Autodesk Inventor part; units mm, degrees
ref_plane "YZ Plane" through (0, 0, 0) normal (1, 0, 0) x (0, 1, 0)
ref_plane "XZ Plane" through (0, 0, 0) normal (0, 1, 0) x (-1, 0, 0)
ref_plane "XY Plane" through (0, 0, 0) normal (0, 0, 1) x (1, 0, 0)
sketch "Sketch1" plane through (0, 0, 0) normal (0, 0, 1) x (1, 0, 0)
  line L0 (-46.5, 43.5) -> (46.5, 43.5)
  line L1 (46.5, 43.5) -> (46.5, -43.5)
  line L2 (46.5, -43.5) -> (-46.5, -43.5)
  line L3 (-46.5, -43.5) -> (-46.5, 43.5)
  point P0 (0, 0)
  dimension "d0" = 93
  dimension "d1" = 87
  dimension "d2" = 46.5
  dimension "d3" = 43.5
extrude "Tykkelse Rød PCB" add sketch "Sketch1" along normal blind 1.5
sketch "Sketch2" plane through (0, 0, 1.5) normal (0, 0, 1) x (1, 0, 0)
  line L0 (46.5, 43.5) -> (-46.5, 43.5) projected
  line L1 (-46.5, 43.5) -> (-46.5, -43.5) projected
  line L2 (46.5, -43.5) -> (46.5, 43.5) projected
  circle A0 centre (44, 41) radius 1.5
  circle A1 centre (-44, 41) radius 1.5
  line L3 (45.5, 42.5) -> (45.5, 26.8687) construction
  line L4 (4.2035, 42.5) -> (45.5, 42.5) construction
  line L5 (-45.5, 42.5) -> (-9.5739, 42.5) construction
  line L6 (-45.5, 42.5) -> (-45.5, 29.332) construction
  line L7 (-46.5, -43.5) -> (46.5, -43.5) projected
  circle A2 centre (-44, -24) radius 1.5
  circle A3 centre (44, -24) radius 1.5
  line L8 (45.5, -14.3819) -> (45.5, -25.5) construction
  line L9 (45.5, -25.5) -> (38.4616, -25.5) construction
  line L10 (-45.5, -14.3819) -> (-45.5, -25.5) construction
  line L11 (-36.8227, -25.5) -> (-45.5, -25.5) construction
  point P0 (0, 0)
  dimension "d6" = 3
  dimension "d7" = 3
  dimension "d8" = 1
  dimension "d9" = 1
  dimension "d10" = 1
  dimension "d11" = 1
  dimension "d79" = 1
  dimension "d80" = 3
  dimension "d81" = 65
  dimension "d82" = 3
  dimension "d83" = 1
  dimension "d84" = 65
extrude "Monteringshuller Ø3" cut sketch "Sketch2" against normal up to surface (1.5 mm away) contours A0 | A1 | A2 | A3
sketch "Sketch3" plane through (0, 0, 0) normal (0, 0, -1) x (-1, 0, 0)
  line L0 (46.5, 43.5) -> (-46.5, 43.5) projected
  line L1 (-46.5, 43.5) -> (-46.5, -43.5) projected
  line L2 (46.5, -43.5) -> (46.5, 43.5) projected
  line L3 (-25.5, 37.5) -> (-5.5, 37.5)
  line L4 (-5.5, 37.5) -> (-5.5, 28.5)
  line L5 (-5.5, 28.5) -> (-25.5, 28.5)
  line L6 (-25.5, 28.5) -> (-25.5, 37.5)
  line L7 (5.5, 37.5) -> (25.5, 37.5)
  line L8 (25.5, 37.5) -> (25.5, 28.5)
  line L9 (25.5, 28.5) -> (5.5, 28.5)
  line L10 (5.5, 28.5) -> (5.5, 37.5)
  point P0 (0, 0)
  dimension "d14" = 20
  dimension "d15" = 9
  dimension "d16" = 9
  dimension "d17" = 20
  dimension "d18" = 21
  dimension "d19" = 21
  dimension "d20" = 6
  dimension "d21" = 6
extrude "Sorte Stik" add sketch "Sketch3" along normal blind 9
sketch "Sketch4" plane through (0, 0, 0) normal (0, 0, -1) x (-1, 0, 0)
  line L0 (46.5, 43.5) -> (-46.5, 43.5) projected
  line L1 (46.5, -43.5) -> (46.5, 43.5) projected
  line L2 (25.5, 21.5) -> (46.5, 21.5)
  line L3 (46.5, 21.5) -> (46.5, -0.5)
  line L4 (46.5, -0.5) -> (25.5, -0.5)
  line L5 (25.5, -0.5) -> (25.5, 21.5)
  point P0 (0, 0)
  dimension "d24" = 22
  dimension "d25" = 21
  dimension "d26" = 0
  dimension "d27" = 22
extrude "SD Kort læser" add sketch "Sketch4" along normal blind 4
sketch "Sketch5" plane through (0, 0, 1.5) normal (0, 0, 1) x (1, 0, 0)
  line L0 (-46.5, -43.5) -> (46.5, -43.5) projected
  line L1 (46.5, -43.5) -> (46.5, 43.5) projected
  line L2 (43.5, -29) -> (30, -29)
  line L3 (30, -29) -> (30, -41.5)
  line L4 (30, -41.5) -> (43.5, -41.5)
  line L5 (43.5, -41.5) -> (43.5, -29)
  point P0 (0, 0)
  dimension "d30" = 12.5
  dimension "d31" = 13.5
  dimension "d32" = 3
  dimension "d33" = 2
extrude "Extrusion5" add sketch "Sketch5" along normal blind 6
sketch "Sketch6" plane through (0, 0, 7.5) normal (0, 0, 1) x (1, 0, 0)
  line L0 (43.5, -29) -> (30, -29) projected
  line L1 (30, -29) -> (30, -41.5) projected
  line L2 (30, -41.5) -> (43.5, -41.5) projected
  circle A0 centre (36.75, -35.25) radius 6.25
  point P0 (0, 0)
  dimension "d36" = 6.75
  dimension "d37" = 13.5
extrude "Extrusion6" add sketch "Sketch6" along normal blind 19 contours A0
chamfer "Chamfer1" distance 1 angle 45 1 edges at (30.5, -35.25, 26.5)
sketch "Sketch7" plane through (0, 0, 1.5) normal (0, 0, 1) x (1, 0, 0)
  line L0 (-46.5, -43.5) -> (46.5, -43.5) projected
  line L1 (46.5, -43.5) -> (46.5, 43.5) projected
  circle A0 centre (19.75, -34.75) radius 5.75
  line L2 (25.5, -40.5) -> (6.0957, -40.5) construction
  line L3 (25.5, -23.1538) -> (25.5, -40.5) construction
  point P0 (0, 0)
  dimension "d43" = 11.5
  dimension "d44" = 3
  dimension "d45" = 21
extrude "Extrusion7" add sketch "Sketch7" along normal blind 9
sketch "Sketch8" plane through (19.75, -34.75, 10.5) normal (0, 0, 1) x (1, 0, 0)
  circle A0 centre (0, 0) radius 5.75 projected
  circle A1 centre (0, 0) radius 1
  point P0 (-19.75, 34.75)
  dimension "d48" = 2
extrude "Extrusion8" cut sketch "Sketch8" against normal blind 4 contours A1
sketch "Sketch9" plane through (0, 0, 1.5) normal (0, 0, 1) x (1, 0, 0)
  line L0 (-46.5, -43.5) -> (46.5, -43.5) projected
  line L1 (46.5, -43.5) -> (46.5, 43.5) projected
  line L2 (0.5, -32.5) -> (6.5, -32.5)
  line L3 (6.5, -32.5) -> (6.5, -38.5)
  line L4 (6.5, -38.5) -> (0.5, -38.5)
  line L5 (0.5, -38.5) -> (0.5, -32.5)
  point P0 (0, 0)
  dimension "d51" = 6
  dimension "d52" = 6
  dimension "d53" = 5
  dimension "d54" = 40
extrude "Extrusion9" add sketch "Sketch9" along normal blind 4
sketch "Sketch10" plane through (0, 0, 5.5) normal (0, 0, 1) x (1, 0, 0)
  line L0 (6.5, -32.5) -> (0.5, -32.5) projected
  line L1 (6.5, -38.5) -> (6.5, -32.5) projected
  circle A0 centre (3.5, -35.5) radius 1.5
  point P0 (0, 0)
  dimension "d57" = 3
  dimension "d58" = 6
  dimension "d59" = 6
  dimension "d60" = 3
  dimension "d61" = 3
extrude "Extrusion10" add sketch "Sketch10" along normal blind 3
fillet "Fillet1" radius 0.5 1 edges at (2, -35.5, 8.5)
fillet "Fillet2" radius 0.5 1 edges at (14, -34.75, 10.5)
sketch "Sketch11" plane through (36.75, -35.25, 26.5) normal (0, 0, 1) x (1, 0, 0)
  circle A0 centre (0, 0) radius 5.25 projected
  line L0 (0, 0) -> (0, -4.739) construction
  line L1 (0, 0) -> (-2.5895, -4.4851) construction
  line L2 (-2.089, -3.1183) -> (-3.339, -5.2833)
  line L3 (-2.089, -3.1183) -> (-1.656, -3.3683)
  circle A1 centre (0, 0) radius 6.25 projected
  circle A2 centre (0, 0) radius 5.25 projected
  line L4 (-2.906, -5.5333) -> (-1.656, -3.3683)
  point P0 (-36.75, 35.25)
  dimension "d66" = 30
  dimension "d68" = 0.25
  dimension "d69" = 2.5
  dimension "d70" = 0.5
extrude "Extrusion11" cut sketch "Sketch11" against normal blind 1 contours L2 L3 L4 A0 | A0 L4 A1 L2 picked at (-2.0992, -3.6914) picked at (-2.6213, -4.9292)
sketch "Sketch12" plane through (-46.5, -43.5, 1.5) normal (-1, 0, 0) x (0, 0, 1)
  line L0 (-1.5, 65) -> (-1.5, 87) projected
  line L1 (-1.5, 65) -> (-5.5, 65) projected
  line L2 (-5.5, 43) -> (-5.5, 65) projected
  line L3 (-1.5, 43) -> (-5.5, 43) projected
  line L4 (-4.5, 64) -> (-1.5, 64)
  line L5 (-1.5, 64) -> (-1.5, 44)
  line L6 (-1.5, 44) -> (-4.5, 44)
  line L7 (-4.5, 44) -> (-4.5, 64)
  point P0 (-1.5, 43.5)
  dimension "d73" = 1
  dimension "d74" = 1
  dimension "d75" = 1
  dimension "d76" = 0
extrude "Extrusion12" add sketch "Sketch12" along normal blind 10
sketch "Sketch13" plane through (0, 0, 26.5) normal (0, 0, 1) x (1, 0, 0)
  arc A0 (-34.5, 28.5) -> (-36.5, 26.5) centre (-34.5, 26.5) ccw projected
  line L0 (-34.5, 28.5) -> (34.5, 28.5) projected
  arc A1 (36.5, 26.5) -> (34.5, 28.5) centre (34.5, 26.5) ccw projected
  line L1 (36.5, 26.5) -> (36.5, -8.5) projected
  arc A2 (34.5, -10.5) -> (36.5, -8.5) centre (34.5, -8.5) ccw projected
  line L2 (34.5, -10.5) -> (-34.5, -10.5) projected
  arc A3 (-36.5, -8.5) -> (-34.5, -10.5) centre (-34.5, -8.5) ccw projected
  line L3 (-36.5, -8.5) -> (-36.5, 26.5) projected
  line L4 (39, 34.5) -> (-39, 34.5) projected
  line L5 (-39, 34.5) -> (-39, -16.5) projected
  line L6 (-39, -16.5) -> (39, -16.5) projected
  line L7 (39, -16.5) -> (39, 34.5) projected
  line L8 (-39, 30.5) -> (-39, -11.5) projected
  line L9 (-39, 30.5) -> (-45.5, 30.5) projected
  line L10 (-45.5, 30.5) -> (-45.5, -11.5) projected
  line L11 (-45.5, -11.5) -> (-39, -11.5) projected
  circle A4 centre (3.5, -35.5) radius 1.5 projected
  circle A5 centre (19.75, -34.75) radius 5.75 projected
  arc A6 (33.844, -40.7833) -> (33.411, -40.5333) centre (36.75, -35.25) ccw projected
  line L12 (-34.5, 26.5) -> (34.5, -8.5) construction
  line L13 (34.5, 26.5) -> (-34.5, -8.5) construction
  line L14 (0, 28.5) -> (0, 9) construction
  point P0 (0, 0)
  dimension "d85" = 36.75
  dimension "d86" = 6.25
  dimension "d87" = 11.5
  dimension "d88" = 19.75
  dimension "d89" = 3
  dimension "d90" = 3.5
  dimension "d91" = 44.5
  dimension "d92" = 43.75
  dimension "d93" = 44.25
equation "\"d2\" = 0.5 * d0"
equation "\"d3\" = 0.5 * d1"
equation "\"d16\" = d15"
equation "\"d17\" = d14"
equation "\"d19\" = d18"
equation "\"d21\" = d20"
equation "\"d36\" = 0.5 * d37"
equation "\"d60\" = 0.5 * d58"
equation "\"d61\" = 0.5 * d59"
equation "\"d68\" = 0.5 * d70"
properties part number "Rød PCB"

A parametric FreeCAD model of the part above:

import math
import FreeCAD as App
import Part
import Sketcher

V = App.Vector
Q = App.Units.Quantity


def edges_at(feature, points):
    """Names of the edges that pass closest to the given points."""
    edges = feature.Shape.Edges
    near = lambda p: min(range(len(edges)), key=lambda i: edges[i].distToShape(Part.Vertex(*p))[0])
    return sorted({f"Edge{near(p) + 1}" for p in points})

doc = App.newDocument("Part")
body = doc.addObject("PartDesign::Body", "Body")

# Sketch on XY plane
sketch1 = doc.addObject("Sketcher::SketchObject", "Sketch")
body.addObject(sketch1)
sketch1.AttachmentSupport = (doc.XY_Plane, [""])
sketch1.MapMode = "FlatFace"
sketch1.addGeometry(Part.LineSegment(V(46, 44, 0), V(-46, 44, 0)), False)
sketch1.addGeometry(Part.LineSegment(V(-46, 44, 0), V(-46, -44, 0)), False)
sketch1.addGeometry(Part.LineSegment(V(-46, -44, 0), V(46, -44, 0)), False)
sketch1.addGeometry(Part.LineSegment(V(46, -44, 0), V(46, 44, 0)), False)
sketch1.addConstraint(Sketcher.Constraint("Coincident", 0, 2, 1, 1))
sketch1.addConstraint(Sketcher.Constraint("Coincident", 1, 2, 2, 1))
sketch1.addConstraint(Sketcher.Constraint("Coincident", 2, 2, 3, 1))
sketch1.addConstraint(Sketcher.Constraint("Coincident", 3, 2, 0, 1))
sketch1.addConstraint(Sketcher.Constraint("Horizontal", 0))
sketch1.addConstraint(Sketcher.Constraint("Vertical", 1))
sketch1.addConstraint(Sketcher.Constraint("Horizontal", 2))
sketch1.addConstraint(Sketcher.Constraint("Vertical", 3))
sketch1.addConstraint(Sketcher.Constraint("Symmetric", 0, 2, 2, 2, -1, 1))
sketch1.addConstraint(Sketcher.Constraint("DistanceX", 0, 2, 0, 1, 93.0))
sketch1.addConstraint(Sketcher.Constraint("DistanceY", 1, 2, 1, 1, 87.0))
pad1 = doc.addObject("PartDesign::Pad", "Pad")
body.addObject(pad1)
pad1.Profile = sketch1
pad1.Length = 1.5

# Sketch on XY plane
sketch2 = doc.addObject("Sketcher::SketchObject", "Sketch001")
body.addObject(sketch2)
sketch2.AttachmentSupport = (doc.XY_Plane, [""])
sketch2.MapMode = "FlatFace"
sketch2.AttachmentOffset = App.Placement(V(0, 0, 1.5), App.Rotation())
sketch2.addGeometry(Part.Circle(V(44, 41, 0), V(0, 0, 1), 1.5), False)
sketch2.addGeometry(Part.Circle(V(-44, 41, 0), V(0, 0, 1), 1.5), False)
sketch2.addGeometry(Part.Circle(V(-44, -24, 0), V(0, 0, 1), 1.5), False)
sketch2.addGeometry(Part.Circle(V(44, -24, 0), V(0, 0, 1), 1.5), False)
sketch2.addConstraint(Sketcher.Constraint("Equal", 0, 1))
sketch2.addConstraint(Sketcher.Constraint("Equal", 1, 2))
sketch2.addConstraint(Sketcher.Constraint("Equal", 2, 3))
sketch2.addConstraint(Sketcher.Constraint("Symmetric", 0, 3, 1, 3, -2))
sketch2.addConstraint(Sketcher.Constraint("Symmetric", 2, 3, 3, 3, -2))
sketch2.addConstraint(Sketcher.Constraint("Vertical", 1, 3, 2, 3))
sketch2.addConstraint(Sketcher.Constraint("Diameter", 0, 3.0))
sketch2.addConstraint(Sketcher.Constraint("DistanceY", 2, 3, 1, 3, 65.0))
sketch2.addConstraint(Sketcher.Constraint("DistanceX", -1, 1, 0, 3, 44.0))
sketch2.addConstraint(Sketcher.Constraint("DistanceY", -1, 1, 0, 3, 41.0))
pocket1 = doc.addObject("PartDesign::Pocket", "Pocket")
body.addObject(pocket1)
pocket1.Profile = sketch2
pocket1.Length = 1.5

# Sketch on XY plane
sketch3 = doc.addObject("Sketcher::SketchObject", "Sketch002")
body.addObject(sketch3)
sketch3.AttachmentSupport = (doc.XY_Plane, [""])
sketch3.MapMode = "FlatFace"
sketch3.addGeometry(Part.LineSegment(V(6, 38, 0), V(26, 38, 0)), False)
sketch3.addGeometry(Part.LineSegment(V(26, 38, 0), V(26, 28, 0)), False)
sketch3.addGeometry(Part.LineSegment(V(26, 28, 0), V(6, 28, 0)), False)
sketch3.addGeometry(Part.LineSegment(V(6, 28, 0), V(6, 38, 0)), False)
sketch3.addGeometry(Part.LineSegment(V(-26, 38, 0), V(-6, 38, 0)), False)
sketch3.addGeometry(Part.LineSegment(V(-6, 38, 0), V(-6, 28, 0)), False)
sketch3.addGeometry(Part.LineSegment(V(-6, 28, 0), V(-26, 28, 0)), False)
sketch3.addGeometry(Part.LineSegment(V(-26, 28, 0), V(-26, 38, 0)), False)
sketch3.addConstraint(Sketcher.Constraint("Coincident", 0, 2, 1, 1))
sketch3.addConstraint(Sketcher.Constraint("Coincident", 1, 2, 2, 1))
sketch3.addConstraint(Sketcher.Constraint("Coincident", 2, 2, 3, 1))
sketch3.addConstraint(Sketcher.Constraint("Coincident", 3, 2, 0, 1))
sketch3.addConstraint(Sketcher.Constraint("Coincident", 4, 2, 5, 1))
sketch3.addConstraint(Sketcher.Constraint("Coincident", 5, 2, 6, 1))
sketch3.addConstraint(Sketcher.Constraint("Coincident", 6, 2, 7, 1))
sketch3.addConstraint(Sketcher.Constraint("Coincident", 7, 2, 4, 1))
sketch3.addConstraint(Sketcher.Constraint("Horizontal", 0))
sketch3.addConstraint(Sketcher.Constraint("Vertical", 1))
sketch3.addConstraint(Sketcher.Constraint("Horizontal", 2))
sketch3.addConstraint(Sketcher.Constraint("Vertical", 3))
sketch3.addConstraint(Sketcher.Constraint("Horizontal", 4))
sketch3.addConstraint(Sketcher.Constraint("Vertical", 5))
sketch3.addConstraint(Sketcher.Constraint("Horizontal", 6))
sketch3.addConstraint(Sketcher.Constraint("Vertical", 7))
sketch3.addConstraint(Sketcher.Constraint("Symmetric", 3, 2, 4, 2, -2))
sketch3.addConstraint(Sketcher.Constraint("Symmetric", 1, 2, 6, 2, -2))
sketch3.addConstraint(Sketcher.Constraint("DistanceX", 0, 1, 0, 2, 20.0))
sketch3.addConstraint(Sketcher.Constraint("DistanceY", 1, 2, 1, 1, 9.0))
sketch3.addConstraint(Sketcher.Constraint("DistanceX", 4, 2, 3, 2, 11.0))
sketch3.addConstraint(Sketcher.Constraint("DistanceY", -1, 1, 0, 2, 37.5))
pad2 = doc.addObject("PartDesign::Pad", "Pad001")
body.addObject(pad2)
pad2.Profile = sketch3
pad2.Length = 9
pad2.Reversed = True

# Sketch on XY plane
sketch4 = doc.addObject("Sketcher::SketchObject", "Sketch003")
body.addObject(sketch4)
sketch4.AttachmentSupport = (doc.XY_Plane, [""])
sketch4.MapMode = "FlatFace"
sketch4.addGeometry(Part.LineSegment(V(-26, 0, 0), V(-46, 0, 0)), False)
sketch4.addGeometry(Part.LineSegment(V(-46, 0, 0), V(-46, 22, 0)), False)
sketch4.addGeometry(Part.LineSegment(V(-46, 22, 0), V(-26, 22, 0)), False)
sketch4.addGeometry(Part.LineSegment(V(-26, 22, 0), V(-26, 0, 0)), False)
sketch4.addConstraint(Sketcher.Constraint("Coincident", 0, 2, 1, 1))
sketch4.addConstraint(Sketcher.Constraint("Coincident", 1, 2, 2, 1))
sketch4.addConstraint(Sketcher.Constraint("Coincident", 2, 2, 3, 1))
sketch4.addConstraint(Sketcher.Constraint("Coincident", 3, 2, 0, 1))
sketch4.addConstraint(Sketcher.Constraint("Horizontal", 0))
sketch4.addConstraint(Sketcher.Constraint("Vertical", 1))
sketch4.addConstraint(Sketcher.Constraint("Horizontal", 2))
sketch4.addConstraint(Sketcher.Constraint("Vertical", 3))
sketch4.addConstraint(Sketcher.Constraint("DistanceX", 0, 2, 0, 1, 21.0))
sketch4.addConstraint(Sketcher.Constraint("DistanceY", 1, 1, 1, 2, 22.0))
sketch4.addConstraint(Sketcher.Constraint("DistanceX", 0, 2, -1, 1, 46.5))
sketch4.addConstraint(Sketcher.Constraint("DistanceY", 0, 2, -1, 1, 0.5))
pad3 = doc.addObject("PartDesign::Pad", "Pad002")
body.addObject(pad3)
pad3.Profile = sketch4
pad3.Length = 4
pad3.Reversed = True

# Sketch on XY plane
sketch5 = doc.addObject("Sketcher::SketchObject", "Sketch004")
body.addObject(sketch5)
sketch5.AttachmentSupport = (doc.XY_Plane, [""])
sketch5.MapMode = "FlatFace"
sketch5.AttachmentOffset = App.Placement(V(0, 0, 1.5), App.Rotation())
sketch5.addGeometry(Part.LineSegment(V(44, -42, 0), V(44, -29, 0)), False)
sketch5.addGeometry(Part.LineSegment(V(44, -29, 0), V(30, -29, 0)), False)
sketch5.addGeometry(Part.LineSegment(V(30, -29, 0), V(30, -42, 0)), False)
sketch5.addGeometry(Part.LineSegment(V(30, -42, 0), V(44, -42, 0)), False)
sketch5.addConstraint(Sketcher.Constraint("Coincident", 0, 2, 1, 1))
sketch5.addConstraint(Sketcher.Constraint("Coincident", 1, 2, 2, 1))
sketch5.addConstraint(Sketcher.Constraint("Coincident", 2, 2, 3, 1))
sketch5.addConstraint(Sketcher.Constraint("Coincident", 3, 2, 0, 1))
sketch5.addConstraint(Sketcher.Constraint("Vertical", 0))
sketch5.addConstraint(Sketcher.Constraint("Horizontal", 1))
sketch5.addConstraint(Sketcher.Constraint("Vertical", 2))
sketch5.addConstraint(Sketcher.Constraint("Horizontal", 3))
sketch5.addConstraint(Sketcher.Constraint("DistanceX", 1, 2, 1, 1, 13.5))
sketch5.addConstraint(Sketcher.Constraint("DistanceY", 0, 1, 0, 2, 12.5))
sketch5.addConstraint(Sketcher.Constraint("DistanceY", 0, 2, -1, 1, 29.0))
sketch5.addConstraint(Sketcher.Constraint("DistanceX", -1, 1, 1, 2, 30.0))
pad4 = doc.addObject("PartDesign::Pad", "Pad003")
body.addObject(pad4)
pad4.Profile = sketch5
pad4.Length = 6

# Sketch on XY plane
sketch6 = doc.addObject("Sketcher::SketchObject", "Sketch005")
body.addObject(sketch6)
sketch6.AttachmentSupport = (doc.XY_Plane, [""])
sketch6.MapMode = "FlatFace"
sketch6.AttachmentOffset = App.Placement(V(0, 0, 7.5), App.Rotation())
sketch6.addGeometry(Part.Circle(V(37, -35, 0), V(0, 0, 1), 6), False)
sketch6.addConstraint(Sketcher.Constraint("Diameter", 0, 12.5))
sketch6.addConstraint(Sketcher.Constraint("DistanceX", -1, 1, 0, 3, 36.75))
sketch6.addConstraint(Sketcher.Constraint("DistanceY", 0, 3, -1, 1, 35.25))
pad5 = doc.addObject("PartDesign::Pad", "Pad004")
body.addObject(pad5)
pad5.Profile = sketch6
pad5.Length = 19
doc.recompute()

chamfer = doc.addObject("PartDesign::Chamfer", "Chamfer")
body.addObject(chamfer)
chamfer.Base = (pad5, edges_at(pad5, [(30.5, -35.25, 26.5)]))
chamfer.Size = 1

# Sketch on XY plane
sketch7 = doc.addObject("Sketcher::SketchObject", "Sketch006")
body.addObject(sketch7)
sketch7.AttachmentSupport = (doc.XY_Plane, [""])
sketch7.MapMode = "FlatFace"
sketch7.AttachmentOffset = App.Placement(V(0, 0, 1.5), App.Rotation())
sketch7.addGeometry(Part.Circle(V(20, -35, 0), V(0, 0, 1), 6), False)
sketch7.addConstraint(Sketcher.Constraint("Diameter", 0, 11.5))
sketch7.addConstraint(Sketcher.Constraint("DistanceX", -1, 1, 0, 3, 19.75))
sketch7.addConstraint(Sketcher.Constraint("DistanceY", 0, 3, -1, 1, 34.75))
pad6 = doc.addObject("PartDesign::Pad", "Pad005")
body.addObject(pad6)
pad6.Profile = sketch7
pad6.Length = 9

# Sketch on XY plane
sketch8 = doc.addObject("Sketcher::SketchObject", "Sketch007")
body.addObject(sketch8)
sketch8.AttachmentSupport = (doc.XY_Plane, [""])
sketch8.MapMode = "FlatFace"
sketch8.AttachmentOffset = App.Placement(V(0, 0, 10.5), App.Rotation())
sketch8.addGeometry(Part.Circle(V(19.8, -34.8, 0), V(0, 0, 1), 1), False)
sketch8.addConstraint(Sketcher.Constraint("Diameter", 0, 2.0))
sketch8.addConstraint(Sketcher.Constraint("DistanceX", -1, 1, 0, 3, 19.75))
sketch8.addConstraint(Sketcher.Constraint("DistanceY", 0, 3, -1, 1, 34.75))
pocket2 = doc.addObject("PartDesign::Pocket", "Pocket001")
body.addObject(pocket2)
pocket2.Profile = sketch8
pocket2.Length = 4

# Sketch on XY plane
sketch9 = doc.addObject("Sketcher::SketchObject", "Sketch008")
body.addObject(sketch9)
sketch9.AttachmentSupport = (doc.XY_Plane, [""])
sketch9.MapMode = "FlatFace"
sketch9.AttachmentOffset = App.Placement(V(0, 0, 1.5), App.Rotation())
sketch9.addGeometry(Part.LineSegment(V(6, -32, 0), V(0, -32, 0)), False)
sketch9.addGeometry(Part.LineSegment(V(0, -32, 0), V(0, -38, 0)), False)
sketch9.addGeometry(Part.LineSegment(V(0, -38, 0), V(6, -38, 0)), False)
sketch9.addGeometry(Part.LineSegment(V(6, -38, 0), V(6, -32, 0)), False)
sketch9.addConstraint(Sketcher.Constraint("Coincident", 0, 2, 1, 1))
sketch9.addConstraint(Sketcher.Constraint("Coincident", 1, 2, 2, 1))
sketch9.addConstraint(Sketcher.Constraint("Coincident", 2, 2, 3, 1))
sketch9.addConstraint(Sketcher.Constraint("Coincident", 3, 2, 0, 1))
sketch9.addConstraint(Sketcher.Constraint("Horizontal", 0))
sketch9.addConstraint(Sketcher.Constraint("Vertical", 1))
sketch9.addConstraint(Sketcher.Constraint("Horizontal", 2))
sketch9.addConstraint(Sketcher.Constraint("Vertical", 3))
sketch9.addConstraint(Sketcher.Constraint("Equal", 2, 1))
sketch9.addConstraint(Sketcher.Constraint("DistanceX", 0, 2, 0, 1, 6.0))
sketch9.addConstraint(Sketcher.Constraint("DistanceX", -1, 1, 0, 2, 0.5))
sketch9.addConstraint(Sketcher.Constraint("DistanceY", 0, 2, -1, 1, 32.5))
pad7 = doc.addObject("PartDesign::Pad", "Pad006")
body.addObject(pad7)
pad7.Profile = sketch9
pad7.Length = 4

# Sketch on XY plane
sketch10 = doc.addObject("Sketcher::SketchObject", "Sketch009")
body.addObject(sketch10)
sketch10.AttachmentSupport = (doc.XY_Plane, [""])
sketch10.MapMode = "FlatFace"
sketch10.AttachmentOffset = App.Placement(V(0, 0, 5.5), App.Rotation())
sketch10.addGeometry(Part.Circle(V(3.5, -35.5, 0), V(0, 0, 1), 1.5), False)
sketch10.addConstraint(Sketcher.Constraint("Diameter", 0, 3.0))
sketch10.addConstraint(Sketcher.Constraint("DistanceX", -1, 1, 0, 3, 3.5))
sketch10.addConstraint(Sketcher.Constraint("DistanceY", 0, 3, -1, 1, 35.5))
pad8 = doc.addObject("PartDesign::Pad", "Pad007")
body.addObject(pad8)
pad8.Profile = sketch10
pad8.Length = 3
doc.recompute()

fillet = doc.addObject("PartDesign::Fillet", "Fillet")
body.addObject(fillet)
fillet.Base = (pad8, edges_at(pad8, [(2, -35.5, 8.5)]))
fillet.Radius = 0.5
doc.recompute()

fillet2 = doc.addObject("PartDesign::Fillet", "Fillet001")
body.addObject(fillet2)
fillet2.Base = (fillet, edges_at(fillet, [(14, -34.75, 10.5)]))
fillet2.Radius = 0.5

# Sketch on XY plane
sketch11 = doc.addObject("Sketcher::SketchObject", "Sketch010")
body.addObject(sketch11)
sketch11.AttachmentSupport = (doc.XY_Plane, [""])
sketch11.MapMode = "FlatFace"
sketch11.AttachmentOffset = App.Placement(V(0, 0, 26.5), App.Rotation())
sketch11.addGeometry(Part.LineSegment(V(34.66, -38.37, 0), V(33.41, -40.53, 0)), False)
sketch11.addGeometry(Part.ArcOfCircle(Part.Circle(V(36.75, -35.25, 0), V(0, 0, 1), 6.25), math.radians(-122.29), math.radians(-117.71)), False)
sketch11.addGeometry(Part.LineSegment(V(33.84, -40.78, 0), V(35.09, -38.62, 0)), False)
sketch11.addGeometry(Part.LineSegment(V(35.09, -38.62, 0), V(34.66, -38.37, 0)), False)
sketch11.addConstraint(Sketcher.Constraint("Coincident", 0, 2, 1, 1))
sketch11.addConstraint(Sketcher.Constraint("Coincident", 1, 2, 2, 1))
sketch11.addConstraint(Sketcher.Constraint("Coincident", 2, 2, 3, 1))
sketch11.addConstraint(Sketcher.Constraint("Coincident", 3, 2, 0, 1))
sketch11.addConstraint(Sketcher.Constraint("Parallel", 0, 2))
sketch11.addConstraint(Sketcher.Constraint("Perpendicular", 2, 3))
sketch11.addConstraint(Sketcher.Constraint("Equal", 0, 2))
sketch11.addConstraint(Sketcher.Constraint("Distance", 0, 2.5))
sketch11.addConstraint(Sketcher.Constraint("Distance", 3, 0.5))
sketch11.addConstraint(Sketcher.Constraint("Angle", 0, Q("-120.0007 deg")))
sketch11.addConstraint(Sketcher.Constraint("Radius", 1, 6.25))
sketch11.addConstraint(Sketcher.Constraint("DistanceX", -1, 1, 1, 3, 36.75))
sketch11.addConstraint(Sketcher.Constraint("DistanceY", 1, 3, -1, 1, 35.25))
pocket3 = doc.addObject("PartDesign::Pocket", "Pocket002")
body.addObject(pocket3)
pocket3.Profile = sketch11
pocket3.Length = 1

# Sketch on YZ plane
sketch12 = doc.addObject("Sketcher::SketchObject", "Sketch011")
body.addObject(sketch12)
sketch12.AttachmentSupport = (doc.YZ_Plane, [""])
sketch12.MapMode = "FlatFace"
sketch12.AttachmentOffset = App.Placement(V(0, 0, -46.5), App.Rotation())
sketch12.addGeometry(Part.LineSegment(V(20.5, 0, 0), V(20.5, -3, 0)), False)
sketch12.addGeometry(Part.LineSegment(V(20.5, -3, 0), V(0.5, -3, 0)), False)
sketch12.addGeometry(Part.LineSegment(V(0.5, -3, 0), V(0.5, 0, 0)), False)
sketch12.addGeometry(Part.LineSegment(V(0.5, 0, 0), V(20.5, 0, 0)), False)
sketch12.addConstraint(Sketcher.Constraint("Coincident", 0, 2, 1, 1))
sketch12.addConstraint(Sketcher.Constraint("Coincident", 1, 2, 2, 1))
sketch12.addConstraint(Sketcher.Constraint("Coincident", 2, 2, 3, 1))
sketch12.addConstraint(Sketcher.Constraint("Coincident", 3, 2, 0, 1))
sketch12.addConstraint(Sketcher.Constraint("Vertical", 0))
sketch12.addConstraint(Sketcher.Constraint("Horizontal", 1))
sketch12.addConstraint(Sketcher.Constraint("Vertical", 2))
sketch12.addConstraint(Sketcher.Constraint("Horizontal", 3))
sketch12.addConstraint(Sketcher.Constraint("PointOnObject", 2, 2, -1))
sketch12.addConstraint(Sketcher.Constraint("DistanceX", 1, 2, 1, 1, 20.0))
sketch12.addConstraint(Sketcher.Constraint("DistanceY", 0, 2, 0, 1, 3.0))
sketch12.addConstraint(Sketcher.Constraint("DistanceX", -1, 1, 0, 2, 20.5))
pad9 = doc.addObject("PartDesign::Pad", "Pad008")
body.addObject(pad9)
pad9.Profile = sketch12
pad9.Length = 10
pad9.Reversed = True

doc.recompute()
